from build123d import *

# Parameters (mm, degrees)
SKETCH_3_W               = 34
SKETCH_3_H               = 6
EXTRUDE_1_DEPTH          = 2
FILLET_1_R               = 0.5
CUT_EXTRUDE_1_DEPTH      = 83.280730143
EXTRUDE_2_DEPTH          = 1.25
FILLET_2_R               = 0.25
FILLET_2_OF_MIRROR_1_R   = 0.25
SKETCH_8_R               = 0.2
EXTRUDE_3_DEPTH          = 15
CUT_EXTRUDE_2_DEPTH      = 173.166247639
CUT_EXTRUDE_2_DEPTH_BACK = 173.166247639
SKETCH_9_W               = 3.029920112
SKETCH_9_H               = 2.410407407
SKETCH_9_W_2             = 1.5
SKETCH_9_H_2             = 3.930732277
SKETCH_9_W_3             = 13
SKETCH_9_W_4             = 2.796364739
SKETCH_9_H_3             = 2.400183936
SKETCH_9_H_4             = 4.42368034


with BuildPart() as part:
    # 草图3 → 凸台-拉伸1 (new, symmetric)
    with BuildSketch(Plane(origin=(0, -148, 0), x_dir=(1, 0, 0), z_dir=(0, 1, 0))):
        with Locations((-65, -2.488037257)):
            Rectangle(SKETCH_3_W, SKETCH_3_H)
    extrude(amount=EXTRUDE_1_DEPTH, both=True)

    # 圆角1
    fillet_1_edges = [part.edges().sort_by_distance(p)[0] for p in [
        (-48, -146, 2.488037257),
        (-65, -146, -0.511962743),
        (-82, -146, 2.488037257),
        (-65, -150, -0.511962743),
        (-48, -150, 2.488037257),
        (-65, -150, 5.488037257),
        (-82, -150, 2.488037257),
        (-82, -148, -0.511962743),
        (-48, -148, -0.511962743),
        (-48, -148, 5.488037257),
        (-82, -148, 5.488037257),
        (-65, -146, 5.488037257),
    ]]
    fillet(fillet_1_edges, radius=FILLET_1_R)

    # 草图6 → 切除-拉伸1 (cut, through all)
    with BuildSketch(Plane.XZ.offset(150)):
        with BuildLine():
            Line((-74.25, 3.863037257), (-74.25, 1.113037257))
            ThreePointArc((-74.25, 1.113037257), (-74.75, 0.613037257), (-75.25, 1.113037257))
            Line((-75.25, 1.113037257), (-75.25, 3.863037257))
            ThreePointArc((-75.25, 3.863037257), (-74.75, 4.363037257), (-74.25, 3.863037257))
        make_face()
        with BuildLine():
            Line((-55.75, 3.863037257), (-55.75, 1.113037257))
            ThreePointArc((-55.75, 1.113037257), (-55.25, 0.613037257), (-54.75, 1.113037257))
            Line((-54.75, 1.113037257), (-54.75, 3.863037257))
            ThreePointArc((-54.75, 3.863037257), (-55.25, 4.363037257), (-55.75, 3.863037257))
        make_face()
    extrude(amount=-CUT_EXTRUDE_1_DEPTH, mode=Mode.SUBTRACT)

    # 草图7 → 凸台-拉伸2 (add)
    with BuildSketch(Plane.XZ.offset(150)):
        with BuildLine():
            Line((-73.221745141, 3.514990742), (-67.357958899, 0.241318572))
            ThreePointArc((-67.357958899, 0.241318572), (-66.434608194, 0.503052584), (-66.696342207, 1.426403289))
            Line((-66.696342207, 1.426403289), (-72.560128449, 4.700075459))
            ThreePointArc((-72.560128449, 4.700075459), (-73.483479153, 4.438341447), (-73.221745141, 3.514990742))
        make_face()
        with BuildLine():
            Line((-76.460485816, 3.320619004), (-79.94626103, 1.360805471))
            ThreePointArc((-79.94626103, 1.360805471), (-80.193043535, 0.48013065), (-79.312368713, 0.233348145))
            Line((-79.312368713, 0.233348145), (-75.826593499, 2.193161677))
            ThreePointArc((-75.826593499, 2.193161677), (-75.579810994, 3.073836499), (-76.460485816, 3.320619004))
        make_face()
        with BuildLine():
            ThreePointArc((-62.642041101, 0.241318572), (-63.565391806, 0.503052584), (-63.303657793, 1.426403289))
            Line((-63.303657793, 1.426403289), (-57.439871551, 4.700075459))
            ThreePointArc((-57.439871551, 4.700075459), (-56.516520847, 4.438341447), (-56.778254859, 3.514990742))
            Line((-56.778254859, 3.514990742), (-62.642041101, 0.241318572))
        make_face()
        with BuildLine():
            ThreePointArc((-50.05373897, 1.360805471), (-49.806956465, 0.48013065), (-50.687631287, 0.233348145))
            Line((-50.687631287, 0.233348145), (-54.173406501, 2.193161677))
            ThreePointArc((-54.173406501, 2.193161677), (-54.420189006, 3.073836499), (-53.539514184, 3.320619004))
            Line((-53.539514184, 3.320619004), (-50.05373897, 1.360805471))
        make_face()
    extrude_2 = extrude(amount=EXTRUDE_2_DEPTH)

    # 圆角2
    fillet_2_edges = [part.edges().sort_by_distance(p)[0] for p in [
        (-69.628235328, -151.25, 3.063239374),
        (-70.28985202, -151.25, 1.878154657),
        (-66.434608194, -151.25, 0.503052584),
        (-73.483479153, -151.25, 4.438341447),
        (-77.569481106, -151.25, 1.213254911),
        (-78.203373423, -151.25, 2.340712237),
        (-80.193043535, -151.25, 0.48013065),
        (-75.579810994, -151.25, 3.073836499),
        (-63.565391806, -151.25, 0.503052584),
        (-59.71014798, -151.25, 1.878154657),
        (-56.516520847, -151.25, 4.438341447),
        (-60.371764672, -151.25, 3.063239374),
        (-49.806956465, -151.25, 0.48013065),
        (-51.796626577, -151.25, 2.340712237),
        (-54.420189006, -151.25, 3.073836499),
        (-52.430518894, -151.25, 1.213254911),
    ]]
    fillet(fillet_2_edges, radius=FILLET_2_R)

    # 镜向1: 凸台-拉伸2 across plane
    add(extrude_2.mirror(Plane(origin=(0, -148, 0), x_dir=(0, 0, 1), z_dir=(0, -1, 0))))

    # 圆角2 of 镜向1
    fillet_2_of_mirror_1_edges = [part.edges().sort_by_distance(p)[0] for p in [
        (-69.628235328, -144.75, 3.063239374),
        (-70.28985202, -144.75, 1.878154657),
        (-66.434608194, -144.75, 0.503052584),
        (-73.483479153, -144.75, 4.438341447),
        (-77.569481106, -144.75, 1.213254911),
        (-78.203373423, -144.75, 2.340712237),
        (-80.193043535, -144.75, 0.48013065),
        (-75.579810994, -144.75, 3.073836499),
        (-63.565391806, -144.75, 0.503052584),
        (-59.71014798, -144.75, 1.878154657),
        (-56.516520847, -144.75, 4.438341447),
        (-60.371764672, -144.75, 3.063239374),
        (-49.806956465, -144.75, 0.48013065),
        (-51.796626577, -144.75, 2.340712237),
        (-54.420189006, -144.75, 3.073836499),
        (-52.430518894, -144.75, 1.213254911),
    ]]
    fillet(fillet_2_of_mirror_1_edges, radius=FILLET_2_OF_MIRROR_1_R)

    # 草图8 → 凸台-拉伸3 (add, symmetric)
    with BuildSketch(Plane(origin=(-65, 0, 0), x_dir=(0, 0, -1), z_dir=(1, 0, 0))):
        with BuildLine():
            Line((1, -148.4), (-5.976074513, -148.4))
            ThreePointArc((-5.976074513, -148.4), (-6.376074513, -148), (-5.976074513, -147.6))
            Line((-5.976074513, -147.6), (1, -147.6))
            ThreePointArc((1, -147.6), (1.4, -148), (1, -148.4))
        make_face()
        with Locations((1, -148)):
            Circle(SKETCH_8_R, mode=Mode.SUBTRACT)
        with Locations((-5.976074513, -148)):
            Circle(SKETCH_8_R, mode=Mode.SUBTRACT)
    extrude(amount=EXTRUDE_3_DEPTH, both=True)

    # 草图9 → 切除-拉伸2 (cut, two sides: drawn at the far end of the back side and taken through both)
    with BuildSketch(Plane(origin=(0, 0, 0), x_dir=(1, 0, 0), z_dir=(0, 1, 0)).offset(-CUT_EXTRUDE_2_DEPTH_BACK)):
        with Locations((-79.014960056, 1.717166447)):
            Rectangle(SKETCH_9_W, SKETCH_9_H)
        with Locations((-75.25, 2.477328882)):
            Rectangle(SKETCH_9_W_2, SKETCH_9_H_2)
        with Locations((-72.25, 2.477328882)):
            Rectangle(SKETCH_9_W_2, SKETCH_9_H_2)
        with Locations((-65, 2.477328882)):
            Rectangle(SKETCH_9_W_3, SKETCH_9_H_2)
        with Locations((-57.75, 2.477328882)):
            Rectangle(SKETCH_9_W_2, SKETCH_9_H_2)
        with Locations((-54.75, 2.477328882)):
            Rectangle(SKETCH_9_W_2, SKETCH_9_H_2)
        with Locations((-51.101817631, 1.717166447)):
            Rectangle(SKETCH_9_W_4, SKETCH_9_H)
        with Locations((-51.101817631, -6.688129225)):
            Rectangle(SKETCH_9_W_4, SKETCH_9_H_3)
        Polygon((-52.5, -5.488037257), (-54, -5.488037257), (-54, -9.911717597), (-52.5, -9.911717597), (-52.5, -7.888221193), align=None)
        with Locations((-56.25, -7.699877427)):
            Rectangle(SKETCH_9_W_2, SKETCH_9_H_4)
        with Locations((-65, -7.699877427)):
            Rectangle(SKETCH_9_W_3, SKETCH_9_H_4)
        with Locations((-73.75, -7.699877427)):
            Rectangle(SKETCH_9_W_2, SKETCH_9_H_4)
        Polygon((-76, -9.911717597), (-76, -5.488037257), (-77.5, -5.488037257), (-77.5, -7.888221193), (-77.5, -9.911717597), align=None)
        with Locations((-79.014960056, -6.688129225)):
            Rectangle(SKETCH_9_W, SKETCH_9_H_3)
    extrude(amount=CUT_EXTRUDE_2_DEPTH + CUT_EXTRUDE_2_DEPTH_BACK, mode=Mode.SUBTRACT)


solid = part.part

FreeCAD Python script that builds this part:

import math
import FreeCAD as App
import Part
import Sketcher


def edges_at(feature, points):
    """Names of the edges that pass closest to the given points."""
    edges = feature.Shape.Edges
    near = lambda p: min(range(len(edges)), key=lambda i: edges[i].distToShape(Part.Vertex(*p))[0])
    return sorted({f"Edge{near(p) + 1}" for p in points})

doc = App.newDocument("Part")
params = doc.addObject("Spreadsheet::Sheet", "Params")
for row, (alias, value) in enumerate([
    ("sketch1_width", "34 mm"),
    ("sketch1_height", "6 mm"),
    ("pad1_length", "4 mm"),
    ("fillet_radius", "0.5 mm"),
    ("sketch2_radius", "0.5 mm"),
    ("sketch2_height", "2.75 mm"),
    ("pad2_length", "1.25 mm"),
    ("fillet2_radius", "0.25 mm"),
    ("fillet3_radius", "0.25 mm"),
    ("sketch4_diameter", "0.4 mm"),
    ("sketch4_radius", "0.4 mm"),
    ("pad3_length", "30 mm"),
    ("sketch5_width", "16 mm"),
    ("sketch5_width2", "13 mm"),
    ("sketch5_width3", "1.5 mm"),
], start=1):
    params.set(f"A{row}", alias)
    params.set(f"B{row}", "=" + value)
    params.setAlias(f"B{row}", alias)

body = doc.addObject("PartDesign::Body", "Body")

# Sketch on XZ plane
sketch1 = body.newObject("Sketcher::SketchObject", "Sketch")
sketch1.AttachmentSupport = (doc.getObject("XZ_Plane"), [""])
sketch1.MapMode = "FlatFace"
sketch1.AttachmentOffset = App.Placement(App.Vector(0, 0, 148), App.Rotation())
sketch1.addGeometry([
    Part.LineSegment(App.Vector(-82, -1, 0), App.Vector(-82, 5, 0)),
    Part.LineSegment(App.Vector(-82, 5, 0), App.Vector(-48, 5, 0)),
    Part.LineSegment(App.Vector(-48, 5, 0), App.Vector(-48, -1, 0)),
    Part.LineSegment(App.Vector(-48, -1, 0), App.Vector(-82, -1, 0)),
], False)
sketch1.addConstraint([
    Sketcher.Constraint("Coincident", 0, 2, 1, 1),
    Sketcher.Constraint("Coincident", 1, 2, 2, 1),
    Sketcher.Constraint("Coincident", 2, 2, 3, 1),
    Sketcher.Constraint("Coincident", 3, 2, 0, 1),
    Sketcher.Constraint("Vertical", 0),
    Sketcher.Constraint("Horizontal", 1),
    Sketcher.Constraint("Vertical", 2),
    Sketcher.Constraint("Horizontal", 3),
    Sketcher.Constraint("DistanceX", 1, 1, 1, 2, 34.0),
    Sketcher.Constraint("DistanceY", 0, 1, 0, 2, 6.0),
    Sketcher.Constraint("DistanceX", 0, 2, -1, 1, 82.0),
    Sketcher.Constraint("DistanceY", -1, 1, 0, 2, 5.488037),
])
sketch1.setExpression("Constraints[8]", "Params.sketch1_width")
sketch1.setExpression("Constraints[9]", "Params.sketch1_height")
pad1 = body.newObject("PartDesign::Pad", "Pad")
pad1.Profile = sketch1
pad1.setExpression("Length", "Params.pad1_length")
pad1.Midplane = True
doc.recompute()

fillet = body.newObject("PartDesign::Fillet", "Fillet")
fillet.Base = (pad1, ["Edge1"])
fillet.UseAllEdges = True
fillet.setExpression("Radius", "Params.fillet_radius")

# Sketch on XZ plane
sketch2 = body.newObject("Sketcher::SketchObject", "Sketch001")
sketch2.AttachmentSupport = (doc.getObject("XZ_Plane"), [""])
sketch2.MapMode = "FlatFace"
sketch2.AttachmentOffset = App.Placement(App.Vector(0, 0, 150), App.Rotation())
sketch2.addGeometry([
    Part.LineSegment(App.Vector(-74.2, 1.1, 0), App.Vector(-74.2, 3.9, 0)),  # 0
    Part.ArcOfCircle(Part.Circle(App.Vector(-74.8, 3.9, 0), App.Vector(0, 0, 1), 0.5), math.radians(0), math.radians(180)),  # 1
    Part.LineSegment(App.Vector(-75.2, 3.9, 0), App.Vector(-75.2, 1.1, 0)),  # 2
    Part.ArcOfCircle(Part.Circle(App.Vector(-74.8, 1.1, 0), App.Vector(0, 0, 1), 0.5), math.radians(180), math.radians(360)),  # 3
    Part.LineSegment(App.Vector(-55.8, 3.9, 0), App.Vector(-55.8, 1.1, 0)),  # 4
    Part.ArcOfCircle(Part.Circle(App.Vector(-55.2, 1.1, 0), App.Vector(0, 0, 1), 0.5), math.radians(180), math.radians(360)),  # 5
    Part.LineSegment(App.Vector(-54.8, 1.1, 0), App.Vector(-54.8, 3.9, 0)),  # 6
    Part.ArcOfCircle(Part.Circle(App.Vector(-55.2, 3.9, 0), App.Vector(0, 0, 1), 0.5), math.radians(0), math.radians(180)),  # 7
], False)
sketch2.addConstraint([
    Sketcher.Constraint("Tangent", 0, 2, 1, 1),
    Sketcher.Constraint("Tangent", 1, 2, 2, 1),
    Sketcher.Constraint("Tangent", 2, 2, 3, 1),
    Sketcher.Constraint("Tangent", 3, 2, 0, 1),
    Sketcher.Constraint("Tangent", 4, 2, 5, 1),
    Sketcher.Constraint("Tangent", 5, 2, 6, 1),
    Sketcher.Constraint("Tangent", 6, 2, 7, 1),
    Sketcher.Constraint("Tangent", 7, 2, 4, 1),
    Sketcher.Constraint("Vertical", 0),
    Sketcher.Constraint("Vertical", 2),
    Sketcher.Constraint("Vertical", 4),
    Sketcher.Constraint("Vertical", 6),
    Sketcher.Constraint("Equal", 3, 5),
    Sketcher.Constraint("Horizontal", 3, 3, 5, 3),
    Sketcher.Constraint("Horizontal", 1, 3, 7, 3),
    Sketcher.Constraint("Radius", 1, 0.5),
    Sketcher.Constraint("DistanceX", 0, 2, 7, 3, 19.0),
    Sketcher.Constraint("DistanceY", 0, 1, 0, 2, 2.75),
    Sketcher.Constraint("DistanceX", 1, 3, -1, 1, 74.75),
    Sketcher.Constraint("DistanceY", -1, 1, 1, 3, 3.863037),
])
sketch2.setExpression("Constraints[15]", "Params.sketch2_radius")
sketch2.setExpression("Constraints[17]", "Params.sketch2_height")
pocket1 = body.newObject("PartDesign::Pocket", "Pocket")
pocket1.Profile = sketch2
pocket1.Type = "ThroughAll"

# Sketch on XZ plane
sketch3 = body.newObject("Sketcher::SketchObject", "Sketch002")
sketch3.AttachmentSupport = (doc.getObject("XZ_Plane"), [""])
sketch3.MapMode = "FlatFace"
sketch3.AttachmentOffset = App.Placement(App.Vector(0, 0, 150), App.Rotation())
sketch3.addGeometry([
    Part.LineSegment(App.Vector(-73.2, 3.5, 0), App.Vector(-67.4, 0.2, 0)),  # 0
    Part.ArcOfCircle(Part.Circle(App.Vector(-67, 0.8, 0), App.Vector(0, 0, 1), 0.7), math.radians(-119), math.radians(61)),  # 1
    Part.LineSegment(App.Vector(-66.7, 1.4, 0), App.Vector(-72.6, 4.7, 0)),  # 2
    Part.ArcOfCircle(Part.Circle(App.Vector(-72.9, 4.1, 0), App.Vector(0, 0, 1), 0.7), math.radians(61), math.radians(241)),  # 3
    Part.LineSegment(App.Vector(-76.5, 3.3, 0), App.Vector(-79.9, 1.4, 0)),  # 4
    Part.ArcOfCircle(Part.Circle(App.Vector(-79.6, 0.8, 0), App.Vector(0, 0, 1), 0.6), math.radians(119), math.radians(299)),  # 5
    Part.LineSegment(App.Vector(-79.3, 0.2, 0), App.Vector(-75.8, 2.2, 0)),  # 6
    Part.ArcOfCircle(Part.Circle(App.Vector(-76.1, 2.8, 0), App.Vector(0, 0, 1), 0.6), math.radians(-61), math.radians(119)),  # 7
    Part.ArcOfCircle(Part.Circle(App.Vector(-63, 0.8, 0), App.Vector(0, 0, 1), 0.7), math.radians(119), math.radians(299)),  # 8
    Part.LineSegment(App.Vector(-62.6, 0.2, 0), App.Vector(-56.8, 3.5, 0)),  # 9
    Part.ArcOfCircle(Part.Circle(App.Vector(-57.1, 4.1, 0), App.Vector(0, 0, 1), 0.7), math.radians(-61), math.radians(119)),  # 10
    Part.LineSegment(App.Vector(-57.4, 4.7, 0), App.Vector(-63.3, 1.4, 0)),  # 11
    Part.ArcOfCircle(Part.Circle(App.Vector(-50.4, 0.8, 0), App.Vector(0, 0, 1), 0.6), math.radians(-119), math.radians(61)),  # 12
    Part.LineSegment(App.Vector(-50.1, 1.4, 0), App.Vector(-53.5, 3.3, 0)),  # 13
    Part.ArcOfCircle(Part.Circle(App.Vector(-53.9, 2.8, 0), App.Vector(0, 0, 1), 0.6), math.radians(61), math.radians(241)),  # 14
    Part.LineSegment(App.Vector(-54.2, 2.2, 0), App.Vector(-50.7, 0.2, 0)),  # 15
], False)
sketch3.addConstraint([
    Sketcher.Constraint("Tangent", 0, 2, 1, 1),
    Sketcher.Constraint("Tangent", 1, 2, 2, 1),
    Sketcher.Constraint("Tangent", 2, 2, 3, 1),
    Sketcher.Constraint("Tangent", 3, 2, 0, 1),
    Sketcher.Constraint("Tangent", 4, 2, 5, 1),
    Sketcher.Constraint("Tangent", 5, 2, 6, 1),
    Sketcher.Constraint("Tangent", 6, 2, 7, 1),
    Sketcher.Constraint("Tangent", 7, 2, 4, 1),
    Sketcher.Constraint("Tangent", 8, 2, 9, 1),
    Sketcher.Constraint("Tangent", 9, 2, 10, 1),
    Sketcher.Constraint("Tangent", 10, 2, 11, 1),
    Sketcher.Constraint("Tangent", 11, 2, 8, 1),
    Sketcher.Constraint("Tangent", 12, 2, 13, 1),
    Sketcher.Constraint("Tangent", 13, 2, 14, 1),
    Sketcher.Constraint("Tangent", 14, 2, 15, 1),
    Sketcher.Constraint("Tangent", 15, 2, 12, 1),
    Sketcher.Constraint("Equal", 1, 3),
    Sketcher.Constraint("Equal", 5, 7),
    Sketcher.Constraint("Equal", 3, 8),
    Sketcher.Constraint("Equal", 8, 10),
    Sketcher.Constraint("Equal", 7, 12),
    Sketcher.Constraint("Equal", 12, 14),
    Sketcher.Constraint("Horizontal", 1, 3, 8, 3),
    Sketcher.Constraint("Horizontal", 3, 3, 10, 3),
    Sketcher.Constraint("Horizontal", 5, 3, 12, 3),
    Sketcher.Constraint("Horizontal", 7, 3, 14, 3),
    Sketcher.Constraint("Horizontal", 0, 2, 8, 2),
    Sketcher.Constraint("Horizontal", 4, 2, 12, 2),
    Sketcher.Constraint("Radius", 1, 0.678631),
    Sketcher.Constraint("Radius", 5, 0.646719),
    Sketcher.Constraint("DistanceX", 1, 3, 8, 3, 4.054301),
    Sketcher.Constraint("DistanceY", 7, 3, 3, 2, 0.7581),
    Sketcher.Constraint("Distance", 0, 6.715722),
    Sketcher.Constraint("DistanceX", 1, 3, -1, 1, 67.027151),
    Sketcher.Constraint("DistanceY", -1, 1, 1, 3, 0.833861),
    Sketcher.Constraint("DistanceX", 7, 3, -1, 1, 76.14354),
    Sketcher.Constraint("DistanceY", -1, 1, 7, 3, 2.75689),
    Sketcher.Constraint("DistanceX", 14, 3, -1, 1, 53.85646),
    Sketcher.Constraint("DistanceX", 4, 2, -1, 1, 79.946261),
    Sketcher.Constraint("DistanceX", 5, 2, -1, 1, 79.312369),
])
pad2 = body.newObject("PartDesign::Pad", "Pad001")
pad2.Profile = sketch3
pad2.setExpression("Length", "Params.pad2_length")
doc.recompute()

fillet2 = body.newObject("PartDesign::Fillet", "Fillet001")
fillet2.Base = (pad2, edges_at(pad2, [
    (-69.628, -151.25, 3.063),
    (-70.29, -151.25, 1.878),
    (-66.435, -151.25, 0.503),
    (-73.483, -151.25, 4.438),
    (-77.569, -151.25, 1.213),
    (-78.203, -151.25, 2.341),
    (-80.193, -151.25, 0.48),
    (-75.58, -151.25, 3.074),
    (-63.565, -151.25, 0.503),
    (-59.71, -151.25, 1.878),
    (-56.517, -151.25, 4.438),
    (-60.372, -151.25, 3.063),
    (-49.807, -151.25, 0.48),
    (-51.797, -151.25, 2.341),
    (-54.42, -151.25, 3.074),
    (-52.431, -151.25, 1.213),
]))
fillet2.setExpression("Radius", "Params.fillet2_radius")
doc.recompute()

datumplane = body.newObject("PartDesign::Plane", "DatumPlane")
datumplane.AttachmentSupport = (doc.getObject("XZ_Plane"), [""])
datumplane.MapMode = "FlatFace"
datumplane.AttachmentOffset = App.Placement(App.Vector(0, 0, 148), App.Rotation())
mirrored = body.newObject("PartDesign::Mirrored", "Mirrored")
mirrored.Originals = [pad2]
mirrored.MirrorPlane = (datumplane, [""])
body.Tip = mirrored
doc.recompute()

fillet3 = body.newObject("PartDesign::Fillet", "Fillet002")
fillet3.Base = (mirrored, edges_at(mirrored, [
    (-69.628, -144.75, 3.063),
    (-70.29, -144.75, 1.878),
    (-66.435, -144.75, 0.503),
    (-73.483, -144.75, 4.438),
    (-77.569, -144.75, 1.213),
    (-78.203, -144.75, 2.341),
    (-80.193, -144.75, 0.48),
    (-75.58, -144.75, 3.074),
    (-63.565, -144.75, 0.503),
    (-59.71, -144.75, 1.878),
    (-56.517, -144.75, 4.438),
    (-60.372, -144.75, 3.063),
    (-49.807, -144.75, 0.48),
    (-51.797, -144.75, 2.341),
    (-54.42, -144.75, 3.074),
    (-52.431, -144.75, 1.213),
]))
fillet3.setExpression("Radius", "Params.fillet3_radius")

# Sketch on YZ plane
sketch4 = body.newObject("Sketcher::SketchObject", "Sketch003")
sketch4.AttachmentSupport = (doc.getObject("YZ_Plane"), [""])
sketch4.MapMode = "FlatFace"
sketch4.AttachmentOffset = App.Placement(App.Vector(0, 0, -65), App.Rotation())
sketch4.addGeometry([
    Part.LineSegment(App.Vector(-148.4, 5.98, 0), App.Vector(-148.4, -1, 0)),  # 0
    Part.ArcOfCircle(Part.Circle(App.Vector(-148, -1, 0), App.Vector(0, 0, 1), 0.4), math.radians(180), math.radians(360)),  # 1
    Part.LineSegment(App.Vector(-147.6, -1, 0), App.Vector(-147.6, 5.98, 0)),  # 2
    Part.ArcOfCircle(Part.Circle(App.Vector(-148, 5.98, 0), App.Vector(0, 0, 1), 0.4), math.radians(0), math.radians(180)),  # 3
    Part.Circle(App.Vector(-148, -1, 0), App.Vector(0, 0, 1), 0.2),  # 4
    Part.Circle(App.Vector(-148, 5.98, 0), App.Vector(0, 0, 1), 0.2),  # 5
], False)
sketch4.addConstraint([
    Sketcher.Constraint("Tangent", 0, 2, 1, 1),
    Sketcher.Constraint("Tangent", 1, 2, 2, 1),
    Sketcher.Constraint("Tangent", 2, 2, 3, 1),
    Sketcher.Constraint("Tangent", 3, 2, 0, 1),
    Sketcher.Constraint("Vertical", 0),
    Sketcher.Constraint("Vertical", 2),
    Sketcher.Constraint("Coincident", 4, 3, 1, 3),
    Sketcher.Constraint("Coincident", 5, 3, 3, 3),
    Sketcher.Constraint("Equal", 4, 5),
    Sketcher.Constraint("Diameter", 4, 0.4),
    Sketcher.Constraint("Radius", 1, 0.4),
    Sketcher.Constraint("DistanceX", 1, 3, -1, 1, 148.0),
    Sketcher.Constraint("DistanceY", 1, 3, -1, 1, 1.0),
    Sketcher.Constraint("DistanceY", 0, 2, 0, 1, 6.976075),
])
sketch4.setExpression("Constraints[9]", "Params.sketch4_diameter")
sketch4.setExpression("Constraints[10]", "Params.sketch4_radius")
pad3 = body.newObject("PartDesign::Pad", "Pad002")
pad3.Profile = sketch4
pad3.setExpression("Length", "Params.pad3_length")
pad3.Midplane = True

# Sketch on XZ plane
sketch5 = body.newObject("Sketcher::SketchObject", "Sketch004")
sketch5.AttachmentSupport = (doc.getObject("XZ_Plane"), [""])
sketch5.MapMode = "FlatFace"
sketch5.addGeometry([
    Part.LineSegment(App.Vector(-80.5, -2.9, 0), App.Vector(-80.5, -0.5, 0)),  # 0
    Part.LineSegment(App.Vector(-80.5, -0.5, 0), App.Vector(-77.5, -0.5, 0)),  # 1
    Part.LineSegment(App.Vector(-77.5, -0.5, 0), App.Vector(-77.5, -2.9, 0)),  # 2
    Part.LineSegment(App.Vector(-77.5, -2.9, 0), App.Vector(-80.5, -2.9, 0)),  # 3
    Part.LineSegment(App.Vector(-76, -4.4, 0), App.Vector(-76, -0.5, 0)),  # 4
    Part.LineSegment(App.Vector(-76, -0.5, 0), App.Vector(-74.5, -0.5, 0)),  # 5
    Part.LineSegment(App.Vector(-74.5, -0.5, 0), App.Vector(-74.5, -4.4, 0)),  # 6
    Part.LineSegment(App.Vector(-74.5, -4.4, 0), App.Vector(-76, -4.4, 0)),  # 7
    Part.LineSegment(App.Vector(-73, -4.4, 0), App.Vector(-73, -0.5, 0)),  # 8
    Part.LineSegment(App.Vector(-73, -0.5, 0), App.Vector(-57, -0.5, 0)),  # 9
    Part.LineSegment(App.Vector(-57, -0.5, 0), App.Vector(-57, -4.4, 0)),  # 10
    Part.LineSegment(App.Vector(-57, -4.4, 0), App.Vector(-73, -4.4, 0)),  # 11
    Part.LineSegment(App.Vector(-55.5, -4.4, 0), App.Vector(-55.5, -0.5, 0)),  # 12
    Part.LineSegment(App.Vector(-55.5, -0.5, 0), App.Vector(-54, -0.5, 0)),  # 13
    Part.LineSegment(App.Vector(-54, -0.5, 0), App.Vector(-54, -4.4, 0)),  # 14
    Part.LineSegment(App.Vector(-54, -4.4, 0), App.Vector(-55.5, -4.4, 0)),  # 15
    Part.LineSegment(App.Vector(-52.5, -2.9, 0), App.Vector(-52.5, -0.5, 0)),  # 16
    Part.LineSegment(App.Vector(-52.5, -0.5, 0), App.Vector(-49.7, -0.5, 0)),  # 17
    Part.LineSegment(App.Vector(-49.7, -0.5, 0), App.Vector(-49.7, -2.9, 0)),  # 18
    Part.LineSegment(App.Vector(-49.7, -2.9, 0), App.Vector(-52.5, -2.9, 0)),  # 19
    Part.LineSegment(App.Vector(-52.5, 7.9, 0), App.Vector(-49.7, 7.9, 0)),  # 20
    Part.LineSegment(App.Vector(-49.7, 7.9, 0), App.Vector(-49.7, 5.5, 0)),  # 21
    Part.LineSegment(App.Vector(-49.7, 5.5, 0), App.Vector(-54, 5.5, 0)),  # 22
    Part.LineSegment(App.Vector(-54, 5.5, 0), App.Vector(-54, 9.9, 0)),  # 23
    Part.LineSegment(App.Vector(-54, 9.9, 0), App.Vector(-52.5, 9.9, 0)),  # 24
    Part.LineSegment(App.Vector(-52.5, 9.9, 0), App.Vector(-52.5, 7.9, 0)),  # 25
    Part.LineSegment(App.Vector(-57, 5.5, 0), App.Vector(-57, 9.9, 0)),  # 26
    Part.LineSegment(App.Vector(-57, 9.9, 0), App.Vector(-55.5, 9.9, 0)),  # 27
    Part.LineSegment(App.Vector(-55.5, 9.9, 0), App.Vector(-55.5, 5.5, 0)),  # 28
    Part.LineSegment(App.Vector(-55.5, 5.5, 0), App.Vector(-57, 5.5, 0)),  # 29
    Part.LineSegment(App.Vector(-71.5, 5.5, 0), App.Vector(-71.5, 9.9, 0)),  # 30
    Part.LineSegment(App.Vector(-71.5, 9.9, 0), App.Vector(-58.5, 9.9, 0)),  # 31
    Part.LineSegment(App.Vector(-58.5, 9.9, 0), App.Vector(-58.5, 5.5, 0)),  # 32
    Part.LineSegment(App.Vector(-58.5, 5.5, 0), App.Vector(-71.5, 5.5, 0)),  # 33
    Part.LineSegment(App.Vector(-74.5, 5.5, 0), App.Vector(-74.5, 9.9, 0)),  # 34
    Part.LineSegment(App.Vector(-74.5, 9.9, 0), App.Vector(-73, 9.9, 0)),  # 35
    Part.LineSegment(App.Vector(-73, 9.9, 0), App.Vector(-73, 5.5, 0)),  # 36
    Part.LineSegment(App.Vector(-73, 5.5, 0), App.Vector(-74.5, 5.5, 0)),  # 37
    Part.LineSegment(App.Vector(-76, 9.9, 0), App.Vector(-76, 5.5, 0)),  # 38
    Part.LineSegment(App.Vector(-76, 5.5, 0), App.Vector(-80.5, 5.5, 0)),  # 39
    Part.LineSegment(App.Vector(-80.5, 5.5, 0), App.Vector(-80.5, 7.9, 0)),  # 40
    Part.LineSegment(App.Vector(-80.5, 7.9, 0), App.Vector(-77.5, 7.9, 0)),  # 41
    Part.LineSegment(App.Vector(-77.5, 7.9, 0), App.Vector(-77.5, 9.9, 0)),  # 42
    Part.LineSegment(App.Vector(-77.5, 9.9, 0), App.Vector(-76, 9.9, 0)),  # 43
], False)
sketch5.addConstraint([
    Sketcher.Constraint("Coincident", 0, 2, 1, 1),
    Sketcher.Constraint("Coincident", 1, 2, 2, 1),
    Sketcher.Constraint("Coincident", 2, 2, 3, 1),
    Sketcher.Constraint("Coincident", 3, 2, 0, 1),
    Sketcher.Constraint("Coincident", 4, 2, 5, 1),
    Sketcher.Constraint("Coincident", 5, 2, 6, 1),
    Sketcher.Constraint("Coincident", 6, 2, 7, 1),
    Sketcher.Constraint("Coincident", 7, 2, 4, 1),
    Sketcher.Constraint("Coincident", 8, 2, 9, 1),
    Sketcher.Constraint("Coincident", 9, 2, 10, 1),
    Sketcher.Constraint("Coincident", 10, 2, 11, 1),
    Sketcher.Constraint("Coincident", 11, 2, 8, 1),
    Sketcher.Constraint("Coincident", 12, 2, 13, 1),
    Sketcher.Constraint("Coincident", 13, 2, 14, 1),
    Sketcher.Constraint("Coincident", 14, 2, 15, 1),
    Sketcher.Constraint("Coincident", 15, 2, 12, 1),
    Sketcher.Constraint("Coincident", 16, 2, 17, 1),
    Sketcher.Constraint("Coincident", 17, 2, 18, 1),
    Sketcher.Constraint("Coincident", 18, 2, 19, 1),
    Sketcher.Constraint("Coincident", 19, 2, 16, 1),
    Sketcher.Constraint("Coincident", 20, 2, 21, 1),
    Sketcher.Constraint("Coincident", 21, 2, 22, 1),
    Sketcher.Constraint("Coincident", 22, 2, 23, 1),
    Sketcher.Constraint("Coincident", 23, 2, 24, 1),
    Sketcher.Constraint("Coincident", 24, 2, 25, 1),
    Sketcher.Constraint("Coincident", 25, 2, 20, 1),
    Sketcher.Constraint("Coincident", 26, 2, 27, 1),
    Sketcher.Constraint("Coincident", 27, 2, 28, 1),
    Sketcher.Constraint("Coincident", 28, 2, 29, 1),
    Sketcher.Constraint("Coincident", 29, 2, 26, 1),
    Sketcher.Constraint("Coincident", 30, 2, 31, 1),
    Sketcher.Constraint("Coincident", 31, 2, 32, 1),
    Sketcher.Constraint("Coincident", 32, 2, 33, 1),
    Sketcher.Constraint("Coincident", 33, 2, 30, 1),
    Sketcher.Constraint("Coincident", 34, 2, 35, 1),
    Sketcher.Constraint("Coincident", 35, 2, 36, 1),
    Sketcher.Constraint("Coincident", 36, 2, 37, 1),
    Sketcher.Constraint("Coincident", 37, 2, 34, 1),
    Sketcher.Constraint("Coincident", 38, 2, 39, 1),
    Sketcher.Constraint("Coincident", 39, 2, 40, 1),
    Sketcher.Constraint("Coincident", 40, 2, 41, 1),
    Sketcher.Constraint("Coincident", 41, 2, 42, 1),
    Sketcher.Constraint("Coincident", 42, 2, 43, 1),
    Sketcher.Constraint("Coincident", 43, 2, 38, 1),
    Sketcher.Constraint("Vertical", 0),
    Sketcher.Constraint("Horizontal", 1),
    Sketcher.Constraint("Vertical", 2),
    Sketcher.Constraint("Horizontal", 3),
    Sketcher.Constraint("Vertical", 4),
    Sketcher.Constraint("Horizontal", 5),
    Sketcher.Constraint("Vertical", 6),
    Sketcher.Constraint("Horizontal", 7),
    Sketcher.Constraint("Vertical", 8),
    Sketcher.Constraint("Horizontal", 9),
    Sketcher.Constraint("Vertical", 10),
    Sketcher.Constraint("Horizontal", 11),
    Sketcher.Constraint("Vertical", 12),
    Sketcher.Constraint("Horizontal", 13),
    Sketcher.Constraint("Vertical", 14),
    Sketcher.Constraint("Horizontal", 15),
    Sketcher.Constraint("Vertical", 16),
    Sketcher.Constraint("Horizontal", 17),
    Sketcher.Constraint("Vertical", 18),
    Sketcher.Constraint("Horizontal", 19),
    Sketcher.Constraint("Horizontal", 20),
    Sketcher.Constraint("Vertical", 21),
    Sketcher.Constraint("Horizontal", 22),
    Sketcher.Constraint("Vertical", 23),
    Sketcher.Constraint("Horizontal", 24),
    Sketcher.Constraint("Vertical", 25),
    Sketcher.Constraint("Vertical", 26),
    Sketcher.Constraint("Horizontal", 27),
    Sketcher.Constraint("Vertical", 28),
    Sketcher.Constraint("Horizontal", 29),
    Sketcher.Constraint("Vertical", 30),
    Sketcher.Constraint("Horizontal", 31),
    Sketcher.Constraint("Vertical", 32),
    Sketcher.Constraint("Horizontal", 33),
    Sketcher.Constraint("Vertical", 34),
    Sketcher.Constraint("Horizontal", 35),
    Sketcher.Constraint("Vertical", 36),
    Sketcher.Constraint("Horizontal", 37),
    Sketcher.Constraint("Vertical", 38),
    Sketcher.Constraint("Horizontal", 39),
    Sketcher.Constraint("Vertical", 40),
    Sketcher.Constraint("Horizontal", 41),
    Sketcher.Constraint("Vertical", 42),
    Sketcher.Constraint("Horizontal", 43),
    Sketcher.Constraint("Horizontal", 1, 2, 4, 2),
    Sketcher.Constraint("Horizontal", 5, 2, 8, 2),
    Sketcher.Constraint("Horizontal", 7, 2, 10, 2),
    Sketcher.Constraint("Horizontal", 9, 2, 12, 2),
    Sketcher.Constraint("Horizontal", 11, 2, 14, 2),
    Sketcher.Constraint("Horizontal", 13, 2, 16, 2),
    Sketcher.Constraint("Horizontal", 3, 2, 18, 2),
    Sketcher.Constraint("Horizontal", 24, 2, 26, 2),
    Sketcher.Constraint("Horizontal", 22, 2, 28, 2),
    Sketcher.Constraint("Horizontal", 27, 2, 30, 2),
    Sketcher.Constraint("Horizontal", 29, 2, 32, 2),
    Sketcher.Constraint("Horizontal", 31, 2, 34, 2),
    Sketcher.Constraint("Horizontal", 33, 2, 36, 2),
    Sketcher.Constraint("Horizontal", 37, 2, 38, 2),
    Sketcher.Constraint("Horizontal", 25, 2, 40, 2),
    Sketcher.Constraint("Horizontal", 35, 2, 42, 2),
    Sketcher.Constraint("Vertical", 18, 2, 20, 2),
    Sketcher.Constraint("Vertical", 14, 2, 22, 2),
    Sketcher.Constraint("Vertical", 19, 2, 24, 2),
    Sketcher.Constraint("Vertical", 10, 2, 26, 2),
    Sketcher.Constraint("Vertical", 15, 2, 27, 2),
    Sketcher.Constraint("Vertical", 6, 2, 34, 2),
    Sketcher.Constraint("Vertical", 11, 2, 35, 2),
    Sketcher.Constraint("Vertical", 7, 2, 38, 2),
    Sketcher.Constraint("Vertical", 3, 2, 39, 2),
    Sketcher.Constraint("Vertical", 2, 2, 41, 2),
    Sketcher.Constraint("Equal", 7, 13),
    Sketcher.Constraint("Equal", 15, 24),
    Sketcher.Constraint("Equal", 24, 27),
    Sketcher.Constraint("Equal", 29, 35),
    Sketcher.Constraint("Equal", 37, 43),
    Sketcher.Constraint("DistanceX", 9, 1, 9, 2, 16.0),
    Sketcher.Constraint("DistanceX", 31, 1, 31, 2, 13.0),
    Sketcher.Constraint("DistanceX", 5, 1, 5, 2, 1.5),
    Sketcher.Constraint("DistanceX", 4, 2, -1, 1, 76.0),
    Sketcher.Constraint("DistanceY", 17, 2, 21, 2, 6.0),
    Sketcher.Constraint("DistanceX", 5, 2, 30, 2, 3.0),
    Sketcher.Constraint("DistanceX", 1, 1, 1, 2, 3.02992),
    Sketcher.Constraint("DistanceY", 23, 1, 23, 2, 4.42368),
    Sketcher.Constraint("DistanceX", 17, 1, 17, 2, 2.796365),
    Sketcher.Constraint("DistanceY", 0, 1, 0, 2, 2.410407),
    Sketcher.Constraint("DistanceY", 4, 1, 4, 2, 3.930732),
    Sketcher.Constraint("DistanceY", 21, 2, 21, 1, 2.400184),
    Sketcher.Constraint("DistanceY", 2, 2, -1, 1, 2.92237),
])
sketch5.setExpression("Constraints[119]", "Params.sketch5_width")
sketch5.setExpression("Constraints[120]", "Params.sketch5_width2")
sketch5.setExpression("Constraints[121]", "Params.sketch5_width3")
pocket2 = body.newObject("PartDesign::Pocket", "Pocket001")
pocket2.Profile = sketch5
pocket2.Type = "ThroughAll"
pocket2.Midplane = True

doc.recompute()
